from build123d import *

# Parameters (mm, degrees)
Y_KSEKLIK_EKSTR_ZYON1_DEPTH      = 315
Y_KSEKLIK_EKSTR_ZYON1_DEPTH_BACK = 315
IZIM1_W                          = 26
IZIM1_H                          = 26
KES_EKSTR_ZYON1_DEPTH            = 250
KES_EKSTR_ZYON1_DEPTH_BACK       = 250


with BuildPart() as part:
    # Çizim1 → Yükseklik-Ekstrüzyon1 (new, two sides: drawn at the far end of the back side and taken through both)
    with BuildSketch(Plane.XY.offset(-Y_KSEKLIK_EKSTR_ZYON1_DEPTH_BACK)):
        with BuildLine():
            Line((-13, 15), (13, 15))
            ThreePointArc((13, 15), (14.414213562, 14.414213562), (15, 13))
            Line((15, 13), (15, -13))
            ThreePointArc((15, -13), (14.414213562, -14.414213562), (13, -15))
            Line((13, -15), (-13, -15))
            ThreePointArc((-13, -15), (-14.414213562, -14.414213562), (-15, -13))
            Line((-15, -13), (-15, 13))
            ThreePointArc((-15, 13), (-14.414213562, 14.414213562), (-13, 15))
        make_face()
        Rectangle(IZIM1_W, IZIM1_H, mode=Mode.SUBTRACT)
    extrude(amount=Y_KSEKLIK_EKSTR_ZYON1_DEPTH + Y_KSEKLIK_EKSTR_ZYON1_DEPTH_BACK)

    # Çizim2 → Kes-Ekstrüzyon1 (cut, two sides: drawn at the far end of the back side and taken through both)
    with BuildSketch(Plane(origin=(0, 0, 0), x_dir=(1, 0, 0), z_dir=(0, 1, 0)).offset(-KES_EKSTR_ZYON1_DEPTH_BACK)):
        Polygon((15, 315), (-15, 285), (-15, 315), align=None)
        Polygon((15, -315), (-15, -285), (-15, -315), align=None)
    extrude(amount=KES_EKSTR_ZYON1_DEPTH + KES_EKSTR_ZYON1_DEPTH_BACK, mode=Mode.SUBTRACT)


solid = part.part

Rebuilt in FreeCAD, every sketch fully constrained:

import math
import FreeCAD as App
import Part
import Sketcher
from FreeCAD import Vector
Q = App.Units.Quantity

doc = App.newDocument("Part")
body = doc.addObject("PartDesign::Body", "Body")

sketch1 = doc.addObject("Sketcher::SketchObject", "Sketch")
body.addObject(sketch1)
sketch1.AttachmentSupport = (doc.XY_Plane, [""])
sketch1.MapMode = "FlatFace"
sketch1.addGeometry([
    Part.LineSegment(Vector(13, 15, 0), Vector(-13, 15, 0)),
    Part.ArcOfCircle(Part.Circle(Vector(-13, 13, 0), Vector(0, 0, 1), 2), math.radians(90), math.radians(180)),
    Part.LineSegment(Vector(-15, 13, 0), Vector(-15, -13, 0)),
    Part.ArcOfCircle(Part.Circle(Vector(-13, -13, 0), Vector(0, 0, 1), 2), math.radians(-180), math.radians(-90)),
    Part.LineSegment(Vector(-13, -15, 0), Vector(13, -15, 0)),
    Part.ArcOfCircle(Part.Circle(Vector(13, -13, 0), Vector(0, 0, 1), 2), math.radians(-90), math.radians(0)),
    Part.LineSegment(Vector(15, -13, 0), Vector(15, 13, 0)),
    Part.ArcOfCircle(Part.Circle(Vector(13, 13, 0), Vector(0, 0, 1), 2), math.radians(0), math.radians(90)),
    Part.LineSegment(Vector(-13, -13, 0), Vector(-13, 13, 0)),
    Part.LineSegment(Vector(-13, 13, 0), Vector(13, 13, 0)),
    Part.LineSegment(Vector(13, 13, 0), Vector(13, -13, 0)),
    Part.LineSegment(Vector(13, -13, 0), Vector(-13, -13, 0)),
], False)
sketch1.addConstraint([
    Sketcher.Constraint("Tangent", 0, 2, 1, 1),
    Sketcher.Constraint("Tangent", 1, 2, 2, 1),
    Sketcher.Constraint("Tangent", 2, 2, 3, 1),
    Sketcher.Constraint("Tangent", 3, 2, 4, 1),
    Sketcher.Constraint("Tangent", 4, 2, 5, 1),
    Sketcher.Constraint("Tangent", 5, 2, 6, 1),
    Sketcher.Constraint("Tangent", 6, 2, 7, 1),
    Sketcher.Constraint("Tangent", 7, 2, 0, 1),
    Sketcher.Constraint("Coincident", 8, 2, 9, 1),
    Sketcher.Constraint("Coincident", 9, 2, 10, 1),
    Sketcher.Constraint("Coincident", 10, 2, 11, 1),
    Sketcher.Constraint("Coincident", 11, 2, 8, 1),
    Sketcher.Constraint("Horizontal", 0),
    Sketcher.Constraint("Vertical", 2),
    Sketcher.Constraint("Horizontal", 4),
    Sketcher.Constraint("Vertical", 6),
    Sketcher.Constraint("Vertical", 8),
    Sketcher.Constraint("Horizontal", 9),
    Sketcher.Constraint("Vertical", 10),
    Sketcher.Constraint("Horizontal", 11),
    Sketcher.Constraint("Coincident", 8, 2, 1, 3),
    Sketcher.Constraint("Coincident", 9, 2, 7, 3),
    Sketcher.Constraint("Coincident", 10, 2, 5, 3),
    Sketcher.Constraint("Equal", 1, 3),
    Sketcher.Constraint("Symmetric", 1, 3, 5, 3, -1, 1),
    Sketcher.Constraint("Equal", 11, 2),
    Sketcher.Constraint("Radius", 1, Q("2 mm")),
    Sketcher.Constraint("DistanceX", 0, 2, 0, 1, Q("26 mm")),
])
pad1 = doc.addObject("PartDesign::Pad", "Pad")
body.addObject(pad1)
pad1.Profile = sketch1
pad1.Type = "TwoLengths"
pad1.Length = 315
pad1.Length2 = 315

sketch2 = doc.addObject("Sketcher::SketchObject", "Sketch001")
body.addObject(sketch2)
sketch2.AttachmentSupport = (doc.XZ_Plane, [""])
sketch2.MapMode = "FlatFace"
sketch2.addGeometry([
    Part.LineSegment(Vector(-15, -285, 0), Vector(15, -315, 0)),
    Part.LineSegment(Vector(15, -315, 0), Vector(-15, -315, 0)),
    Part.LineSegment(Vector(-15, -315, 0), Vector(-15, -285, 0)),
    Part.LineSegment(Vector(15, 315, 0), Vector(-15, 285, 0)),
    Part.LineSegment(Vector(-15, 285, 0), Vector(-15, 315, 0)),
    Part.LineSegment(Vector(-15, 315, 0), Vector(15, 315, 0)),
], False)
sketch2.addConstraint([
    Sketcher.Constraint("Coincident", 0, 2, 1, 1),
    Sketcher.Constraint("Coincident", 1, 2, 2, 1),
    Sketcher.Constraint("Coincident", 2, 2, 0, 1),
    Sketcher.Constraint("Coincident", 3, 2, 4, 1),
    Sketcher.Constraint("Coincident", 4, 2, 5, 1),
    Sketcher.Constraint("Coincident", 5, 2, 3, 1),
    Sketcher.Constraint("Horizontal", 1),
    Sketcher.Constraint("Vertical", 2),
    Sketcher.Constraint("Vertical", 4),
    Sketcher.Constraint("Horizontal", 5),
    Sketcher.Constraint("Symmetric", 0, 2, 4, 2, -1, 1),
    Sketcher.Constraint("Symmetric", 2, 2, 3, 2, -1),
    Sketcher.Constraint("Perpendicular", 0, 3),
    Sketcher.Constraint("Vertical", 0, 2, 5, 2),
    Sketcher.Constraint("DistanceX", 1, 2, 1, 1, Q("30 mm")),
    Sketcher.Constraint("DistanceY", 0, 2, -1, 1, Q("315 mm")),
])
pocket1 = doc.addObject("PartDesign::Pocket", "Pocket")
body.addObject(pocket1)
pocket1.Profile = sketch2
pocket1.Type = "ThroughAll"
pocket1.Midplane = True

doc.recompute()
